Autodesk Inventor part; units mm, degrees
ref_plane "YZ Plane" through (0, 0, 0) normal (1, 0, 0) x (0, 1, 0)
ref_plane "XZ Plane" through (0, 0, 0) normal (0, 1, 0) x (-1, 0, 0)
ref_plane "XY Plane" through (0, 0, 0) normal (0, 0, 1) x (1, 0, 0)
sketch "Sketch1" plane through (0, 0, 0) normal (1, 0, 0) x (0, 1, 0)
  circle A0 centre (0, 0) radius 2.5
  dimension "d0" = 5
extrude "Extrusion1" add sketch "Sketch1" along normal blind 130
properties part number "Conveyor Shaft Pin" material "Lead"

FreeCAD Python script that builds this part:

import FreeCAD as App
import Part
import Sketcher

V = App.Vector

doc = App.newDocument("Part")
params = doc.addObject("Spreadsheet::Sheet", "Params")
for row, (alias, value) in enumerate([
    ("sketch1_diameter", "5 mm"),
    ("pad1_length", "130 mm"),
], start=1):
    params.set(f"A{row}", alias)
    params.set(f"B{row}", "=" + value)
    params.setAlias(f"B{row}", alias)

body = doc.addObject("PartDesign::Body", "Body")

# Sketch on YZ plane
sketch1 = body.newObject("Sketcher::SketchObject", "Sketch")
sketch1.AttachmentSupport = (doc.getObject("YZ_Plane"), [""])
sketch1.MapMode = "FlatFace"
sketch1.addGeometry(Part.Circle(V(0, 0, 0), V(0, 0, 1), 2.5), False)
sketch1.addConstraint(Sketcher.Constraint("Coincident", 0, 3, -1, 1))
sketch1.addConstraint(Sketcher.Constraint("Diameter", 0, 5.0))
sketch1.setExpression("Constraints[1]", "Params.sketch1_diameter")
pad1 = body.newObject("PartDesign::Pad", "Pad")
pad1.Profile = sketch1
pad1.setExpression("Length", "Params.pad1_length")

doc.recompute()
